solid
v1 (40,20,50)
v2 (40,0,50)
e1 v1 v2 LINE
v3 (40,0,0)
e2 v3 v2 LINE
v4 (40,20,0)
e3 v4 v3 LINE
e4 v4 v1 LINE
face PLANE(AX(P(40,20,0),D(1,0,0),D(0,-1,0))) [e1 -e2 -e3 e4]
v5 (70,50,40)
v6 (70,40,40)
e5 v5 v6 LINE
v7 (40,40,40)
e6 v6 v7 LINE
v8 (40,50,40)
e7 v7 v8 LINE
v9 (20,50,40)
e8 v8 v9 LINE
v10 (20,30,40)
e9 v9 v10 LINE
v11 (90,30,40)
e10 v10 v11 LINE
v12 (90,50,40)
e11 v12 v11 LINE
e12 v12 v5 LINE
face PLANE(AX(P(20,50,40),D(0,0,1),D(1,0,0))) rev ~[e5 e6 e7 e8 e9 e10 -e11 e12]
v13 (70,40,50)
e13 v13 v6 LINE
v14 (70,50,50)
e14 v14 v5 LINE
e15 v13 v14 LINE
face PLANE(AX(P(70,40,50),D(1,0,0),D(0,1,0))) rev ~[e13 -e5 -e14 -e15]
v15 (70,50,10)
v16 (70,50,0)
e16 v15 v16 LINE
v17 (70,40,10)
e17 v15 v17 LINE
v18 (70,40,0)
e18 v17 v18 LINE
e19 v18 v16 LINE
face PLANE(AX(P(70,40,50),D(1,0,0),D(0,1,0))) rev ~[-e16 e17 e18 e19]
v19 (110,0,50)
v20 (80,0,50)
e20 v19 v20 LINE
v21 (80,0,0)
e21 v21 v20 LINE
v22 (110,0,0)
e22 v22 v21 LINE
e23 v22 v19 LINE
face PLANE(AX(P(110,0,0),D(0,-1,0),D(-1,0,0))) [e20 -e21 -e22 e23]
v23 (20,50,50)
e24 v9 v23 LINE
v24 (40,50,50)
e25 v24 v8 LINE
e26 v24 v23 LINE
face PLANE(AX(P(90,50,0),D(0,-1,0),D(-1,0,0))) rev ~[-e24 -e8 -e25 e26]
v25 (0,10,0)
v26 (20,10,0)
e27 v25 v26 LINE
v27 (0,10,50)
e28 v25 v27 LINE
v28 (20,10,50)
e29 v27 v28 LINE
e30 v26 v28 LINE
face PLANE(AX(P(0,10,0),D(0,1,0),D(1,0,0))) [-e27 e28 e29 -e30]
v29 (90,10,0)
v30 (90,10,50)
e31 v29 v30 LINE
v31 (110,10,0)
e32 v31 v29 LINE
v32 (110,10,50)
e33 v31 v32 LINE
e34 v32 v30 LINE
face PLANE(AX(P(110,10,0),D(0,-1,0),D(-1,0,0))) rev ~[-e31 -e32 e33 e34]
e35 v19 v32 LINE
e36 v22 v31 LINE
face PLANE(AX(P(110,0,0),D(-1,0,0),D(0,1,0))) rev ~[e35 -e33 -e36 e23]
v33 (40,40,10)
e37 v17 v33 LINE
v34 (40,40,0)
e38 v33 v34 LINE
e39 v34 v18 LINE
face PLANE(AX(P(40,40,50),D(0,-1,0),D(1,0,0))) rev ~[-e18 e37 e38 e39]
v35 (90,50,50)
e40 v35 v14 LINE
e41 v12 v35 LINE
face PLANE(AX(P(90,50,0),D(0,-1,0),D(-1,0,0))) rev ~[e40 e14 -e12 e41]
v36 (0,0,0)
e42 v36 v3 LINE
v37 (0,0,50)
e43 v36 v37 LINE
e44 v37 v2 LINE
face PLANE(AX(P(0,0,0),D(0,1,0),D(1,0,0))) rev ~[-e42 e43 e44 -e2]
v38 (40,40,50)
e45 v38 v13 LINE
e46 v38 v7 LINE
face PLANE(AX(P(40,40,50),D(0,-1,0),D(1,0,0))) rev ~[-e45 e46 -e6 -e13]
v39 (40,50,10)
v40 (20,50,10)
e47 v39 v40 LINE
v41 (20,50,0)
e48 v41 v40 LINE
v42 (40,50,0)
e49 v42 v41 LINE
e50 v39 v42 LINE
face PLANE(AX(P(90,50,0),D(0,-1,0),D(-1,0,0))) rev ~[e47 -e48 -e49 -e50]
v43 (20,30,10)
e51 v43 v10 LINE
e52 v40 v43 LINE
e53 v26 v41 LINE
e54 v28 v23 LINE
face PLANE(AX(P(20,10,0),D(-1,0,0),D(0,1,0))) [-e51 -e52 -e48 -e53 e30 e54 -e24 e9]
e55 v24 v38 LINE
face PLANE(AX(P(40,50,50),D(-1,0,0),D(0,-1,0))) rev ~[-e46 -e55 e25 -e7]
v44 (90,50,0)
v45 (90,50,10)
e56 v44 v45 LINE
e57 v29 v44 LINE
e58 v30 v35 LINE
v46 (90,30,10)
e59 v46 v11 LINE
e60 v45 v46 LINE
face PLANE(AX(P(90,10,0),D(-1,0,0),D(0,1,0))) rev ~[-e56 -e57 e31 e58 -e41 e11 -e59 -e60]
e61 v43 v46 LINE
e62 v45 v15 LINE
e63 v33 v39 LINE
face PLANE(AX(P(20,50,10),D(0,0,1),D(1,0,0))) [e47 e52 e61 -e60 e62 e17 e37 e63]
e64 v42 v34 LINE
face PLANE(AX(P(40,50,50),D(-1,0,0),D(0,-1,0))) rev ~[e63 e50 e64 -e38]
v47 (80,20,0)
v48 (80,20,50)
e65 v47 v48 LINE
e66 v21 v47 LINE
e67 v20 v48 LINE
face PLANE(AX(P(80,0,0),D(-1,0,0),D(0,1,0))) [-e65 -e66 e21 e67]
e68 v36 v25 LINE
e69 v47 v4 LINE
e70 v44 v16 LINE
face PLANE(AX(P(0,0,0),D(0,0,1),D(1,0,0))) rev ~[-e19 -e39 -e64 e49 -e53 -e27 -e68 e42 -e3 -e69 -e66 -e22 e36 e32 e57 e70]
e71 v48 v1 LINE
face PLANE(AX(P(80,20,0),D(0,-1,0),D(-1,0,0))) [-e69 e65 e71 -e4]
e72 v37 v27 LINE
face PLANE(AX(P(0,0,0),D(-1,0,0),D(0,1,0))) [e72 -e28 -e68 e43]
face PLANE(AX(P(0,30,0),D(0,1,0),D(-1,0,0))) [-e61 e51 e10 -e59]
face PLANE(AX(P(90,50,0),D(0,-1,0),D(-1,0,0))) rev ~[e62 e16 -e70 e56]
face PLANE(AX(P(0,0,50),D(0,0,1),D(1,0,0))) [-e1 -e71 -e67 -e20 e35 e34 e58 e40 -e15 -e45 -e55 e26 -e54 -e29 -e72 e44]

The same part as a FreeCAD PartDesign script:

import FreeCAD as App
import Part
import Sketcher

V = App.Vector
Q = App.Units.Quantity


def add_polygon(sketch, points):
    """Adds a closed chain of lines whose ends are joined by coincident constraints."""
    first, n = sketch.GeometryCount, len(points)
    for a, b in zip(points, points[1:] + points[:1]):
        sketch.addGeometry(Part.LineSegment(App.Vector(*a, 0), App.Vector(*b, 0)), False)
    for i in range(n):
        sketch.addConstraint(Sketcher.Constraint("Coincident", first + i, 2, first + (i + 1) % n, 1))

doc = App.newDocument("Part")
body = doc.addObject("PartDesign::Body", "Body")

sketch1 = body.newObject("Sketcher::SketchObject", "Sketch")
sketch1.AttachmentSupport = (doc.getObject("XY_Plane"), [""])
sketch1.MapMode = "FlatFace"
add_polygon(sketch1, [(80, 0), (110, 0), (110, 10), (90, 10), (90, 50), (20, 50), (20, 10), (0, 10), (0, 0), (40, 0), (40, 20), (80, 20)])
sketch1.addConstraint([
    Sketcher.Constraint("Horizontal", 0),
    Sketcher.Constraint("Vertical", 1),
    Sketcher.Constraint("Horizontal", 2),
    Sketcher.Constraint("Vertical", 3),
    Sketcher.Constraint("Horizontal", 4),
    Sketcher.Constraint("Vertical", 5),
    Sketcher.Constraint("Horizontal", 6),
    Sketcher.Constraint("Vertical", 7),
    Sketcher.Constraint("Horizontal", 8),
    Sketcher.Constraint("Vertical", 9),
    Sketcher.Constraint("Horizontal", 10),
    Sketcher.Constraint("Vertical", 11),
    Sketcher.Constraint("Coincident", 7, 2, -1, 1),
    Sketcher.Constraint("PointOnObject", 0, 2, -1),
    Sketcher.Constraint("Horizontal", 2, 2, 5, 2),
    Sketcher.Constraint("Equal", 2, 6),
    Sketcher.Constraint("Equal", 8, 10),
    Sketcher.Constraint("Equal", 10, 3),
    Sketcher.Constraint("Equal", 6, 9),
    Sketcher.Constraint("DistanceX", 0, 1, 0, 2, Q("30 mm")),
    Sketcher.Constraint("DistanceX", 2, 2, 2, 1, Q("20 mm")),
    Sketcher.Constraint("DistanceX", 4, 2, 4, 1, Q("70 mm")),
    Sketcher.Constraint("DistanceY", 1, 1, 1, 2, Q("10 mm")),
])
pad1 = body.newObject("PartDesign::Pad", "Pad")
pad1.Profile = sketch1
pad1.Length = 50

sketch2 = body.newObject("Sketcher::SketchObject", "Sketch001")
sketch2.AttachmentSupport = (doc.getObject("XY_Plane"), [""])
sketch2.MapMode = "FlatFace"
sketch2.AttachmentOffset = App.Placement(V(0, 0, 50), App.Rotation())
add_polygon(sketch2, [(70, 50), (40, 50), (40, 40), (70, 40)])
sketch2.addConstraint([
    Sketcher.Constraint("Horizontal", 0),
    Sketcher.Constraint("Vertical", 1),
    Sketcher.Constraint("Horizontal", 2),
    Sketcher.Constraint("Vertical", 3),
    Sketcher.Constraint("DistanceY", 1, 2, 1, 1, Q("10 mm")),
    Sketcher.Constraint("DistanceX", 0, 2, 0, 1, Q("30 mm")),
    Sketcher.Constraint("DistanceX", -1, 1, 0, 2, Q("40 mm")),
    Sketcher.Constraint("DistanceY", -1, 1, 0, 2, Q("50 mm")),
])
pocket1 = body.newObject("PartDesign::Pocket", "Pocket")
pocket1.Profile = sketch2
pocket1.Length = 51

sketch3 = body.newObject("Sketcher::SketchObject", "Sketch002")
sketch3.AttachmentSupport = (doc.getObject("XZ_Plane"), [""])
sketch3.MapMode = "FlatFace"
sketch3.AttachmentOffset = App.Placement(V(0, 0, -50), App.Rotation())
add_polygon(sketch3, [(20, 40), (90, 40), (90, 10), (20, 10)])
sketch3.addConstraint([
    Sketcher.Constraint("Horizontal", 0),
    Sketcher.Constraint("Vertical", 1),
    Sketcher.Constraint("Horizontal", 2),
    Sketcher.Constraint("Vertical", 3),
    Sketcher.Constraint("DistanceY", -1, 1, 1, 2, Q("10 mm")),
    Sketcher.Constraint("DistanceX", 0, 1, 0, 2, Q("70 mm")),
    Sketcher.Constraint("DistanceY", 1, 2, 1, 1, Q("30 mm")),
    Sketcher.Constraint("DistanceX", -1, 1, 0, 2, Q("90 mm")),
])
pocket2 = body.newObject("PartDesign::Pocket", "Pocket001")
pocket2.Profile = sketch3
pocket2.Length = 20
pocket2.Reversed = True

doc.recompute()
